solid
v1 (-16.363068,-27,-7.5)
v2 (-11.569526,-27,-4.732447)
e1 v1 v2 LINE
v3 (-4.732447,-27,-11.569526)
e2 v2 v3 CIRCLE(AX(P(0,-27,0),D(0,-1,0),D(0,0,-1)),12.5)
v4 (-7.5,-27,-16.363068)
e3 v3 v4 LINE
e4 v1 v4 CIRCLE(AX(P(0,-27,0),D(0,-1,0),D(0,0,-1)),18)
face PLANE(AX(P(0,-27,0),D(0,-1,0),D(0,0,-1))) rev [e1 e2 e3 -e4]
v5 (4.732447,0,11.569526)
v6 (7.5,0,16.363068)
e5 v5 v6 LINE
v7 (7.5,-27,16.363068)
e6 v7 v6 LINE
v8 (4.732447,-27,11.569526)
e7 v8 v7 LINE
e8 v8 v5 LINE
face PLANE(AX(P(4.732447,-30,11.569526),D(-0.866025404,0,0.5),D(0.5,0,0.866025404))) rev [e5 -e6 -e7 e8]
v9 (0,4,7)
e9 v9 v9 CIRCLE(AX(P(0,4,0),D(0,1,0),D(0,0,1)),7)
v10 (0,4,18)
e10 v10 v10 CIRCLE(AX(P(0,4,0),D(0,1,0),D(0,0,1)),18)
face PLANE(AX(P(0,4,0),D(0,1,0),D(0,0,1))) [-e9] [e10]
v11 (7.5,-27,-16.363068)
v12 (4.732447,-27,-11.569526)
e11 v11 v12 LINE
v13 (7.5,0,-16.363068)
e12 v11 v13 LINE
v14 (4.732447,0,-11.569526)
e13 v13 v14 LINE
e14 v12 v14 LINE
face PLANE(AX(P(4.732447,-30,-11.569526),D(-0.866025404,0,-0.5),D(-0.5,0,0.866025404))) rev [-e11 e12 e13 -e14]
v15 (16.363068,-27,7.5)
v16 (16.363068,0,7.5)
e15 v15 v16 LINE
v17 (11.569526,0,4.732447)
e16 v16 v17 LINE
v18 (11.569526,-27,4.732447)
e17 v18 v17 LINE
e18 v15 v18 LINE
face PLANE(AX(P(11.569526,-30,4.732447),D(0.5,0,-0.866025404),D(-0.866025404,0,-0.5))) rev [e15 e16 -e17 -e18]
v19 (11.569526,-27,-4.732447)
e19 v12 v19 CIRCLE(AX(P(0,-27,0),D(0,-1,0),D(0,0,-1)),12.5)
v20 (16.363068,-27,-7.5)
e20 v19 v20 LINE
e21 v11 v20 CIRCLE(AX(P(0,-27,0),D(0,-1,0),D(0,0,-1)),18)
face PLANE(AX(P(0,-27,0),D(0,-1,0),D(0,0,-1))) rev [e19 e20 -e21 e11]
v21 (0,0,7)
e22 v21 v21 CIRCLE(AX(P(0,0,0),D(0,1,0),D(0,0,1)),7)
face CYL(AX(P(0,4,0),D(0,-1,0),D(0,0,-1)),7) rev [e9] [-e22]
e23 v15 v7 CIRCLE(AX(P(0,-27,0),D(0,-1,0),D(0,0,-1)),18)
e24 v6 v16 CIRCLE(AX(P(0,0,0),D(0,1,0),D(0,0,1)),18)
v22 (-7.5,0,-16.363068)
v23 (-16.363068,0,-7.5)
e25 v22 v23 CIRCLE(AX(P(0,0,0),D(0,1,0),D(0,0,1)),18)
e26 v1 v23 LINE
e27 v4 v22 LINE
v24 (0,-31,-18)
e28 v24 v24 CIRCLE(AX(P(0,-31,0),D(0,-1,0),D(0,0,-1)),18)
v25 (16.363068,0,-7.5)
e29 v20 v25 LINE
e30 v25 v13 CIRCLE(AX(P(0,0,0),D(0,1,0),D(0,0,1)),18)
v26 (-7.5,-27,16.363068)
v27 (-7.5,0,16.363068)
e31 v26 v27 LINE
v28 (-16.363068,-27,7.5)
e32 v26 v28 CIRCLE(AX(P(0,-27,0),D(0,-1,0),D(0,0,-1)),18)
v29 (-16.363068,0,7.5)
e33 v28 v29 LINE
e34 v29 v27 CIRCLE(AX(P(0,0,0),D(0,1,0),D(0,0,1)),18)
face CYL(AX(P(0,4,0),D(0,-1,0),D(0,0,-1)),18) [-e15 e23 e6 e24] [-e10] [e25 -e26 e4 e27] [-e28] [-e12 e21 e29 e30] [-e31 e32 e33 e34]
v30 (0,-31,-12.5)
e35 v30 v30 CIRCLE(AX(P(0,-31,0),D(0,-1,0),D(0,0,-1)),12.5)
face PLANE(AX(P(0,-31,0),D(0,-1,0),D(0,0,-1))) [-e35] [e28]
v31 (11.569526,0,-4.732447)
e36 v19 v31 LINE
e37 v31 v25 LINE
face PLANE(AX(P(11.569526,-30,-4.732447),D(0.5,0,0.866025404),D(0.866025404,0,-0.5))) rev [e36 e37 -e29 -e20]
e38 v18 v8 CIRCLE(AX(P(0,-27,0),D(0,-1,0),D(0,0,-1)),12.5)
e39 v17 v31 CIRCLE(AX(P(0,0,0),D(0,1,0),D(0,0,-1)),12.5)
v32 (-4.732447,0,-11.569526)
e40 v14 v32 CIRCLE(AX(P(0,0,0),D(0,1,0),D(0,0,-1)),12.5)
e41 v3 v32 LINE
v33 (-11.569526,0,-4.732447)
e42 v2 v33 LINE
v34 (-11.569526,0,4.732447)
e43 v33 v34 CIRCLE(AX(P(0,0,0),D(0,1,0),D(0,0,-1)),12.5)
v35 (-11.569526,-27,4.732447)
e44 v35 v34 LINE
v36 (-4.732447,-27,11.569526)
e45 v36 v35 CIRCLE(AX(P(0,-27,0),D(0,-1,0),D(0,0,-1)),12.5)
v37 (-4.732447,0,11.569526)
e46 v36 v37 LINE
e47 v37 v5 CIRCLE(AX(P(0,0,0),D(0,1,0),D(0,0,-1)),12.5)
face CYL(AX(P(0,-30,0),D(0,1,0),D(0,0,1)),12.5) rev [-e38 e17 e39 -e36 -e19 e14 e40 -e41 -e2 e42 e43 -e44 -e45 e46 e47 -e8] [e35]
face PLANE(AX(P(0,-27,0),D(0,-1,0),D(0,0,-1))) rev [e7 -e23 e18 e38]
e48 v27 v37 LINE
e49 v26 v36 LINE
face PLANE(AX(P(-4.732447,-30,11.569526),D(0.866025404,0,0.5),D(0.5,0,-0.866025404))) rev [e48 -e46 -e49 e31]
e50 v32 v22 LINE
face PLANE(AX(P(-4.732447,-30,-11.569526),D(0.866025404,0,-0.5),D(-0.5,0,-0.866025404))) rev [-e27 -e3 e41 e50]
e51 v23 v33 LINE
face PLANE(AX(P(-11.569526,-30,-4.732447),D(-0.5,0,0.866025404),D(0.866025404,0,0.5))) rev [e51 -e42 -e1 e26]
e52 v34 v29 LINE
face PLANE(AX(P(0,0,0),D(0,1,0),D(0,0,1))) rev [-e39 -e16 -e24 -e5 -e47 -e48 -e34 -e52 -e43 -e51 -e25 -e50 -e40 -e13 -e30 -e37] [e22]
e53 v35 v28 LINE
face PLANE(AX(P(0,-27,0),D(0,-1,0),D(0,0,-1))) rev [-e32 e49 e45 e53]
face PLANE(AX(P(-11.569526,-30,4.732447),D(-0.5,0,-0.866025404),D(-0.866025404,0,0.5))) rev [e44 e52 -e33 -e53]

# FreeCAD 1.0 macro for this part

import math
import FreeCAD as App
import Part
import Sketcher

V = App.Vector
Q = App.Units.Quantity

doc = App.newDocument("Part")
body = doc.addObject("PartDesign::Body", "Body")

# Sketch on XZ plane
sketch1 = doc.addObject("Sketcher::SketchObject", "Sketch")
body.addObject(sketch1)
sketch1.AttachmentSupport = (doc.XZ_Plane, [""])
sketch1.MapMode = "FlatFace"
sketch1.addGeometry([
    Part.Circle(V(0, 0, 0), V(0, 0, 1), 18),
    Part.Circle(V(0, 0, 0), V(0, 0, 1), 7),
], False)
sketch1.addConstraint([
    Sketcher.Constraint("Coincident", 0, 3, -1, 1),
    Sketcher.Constraint("Coincident", 1, 3, -1, 1),
    Sketcher.Constraint("Diameter", 0, 36.0),
    Sketcher.Constraint("Diameter", 1, 14.0),
])
pad1 = doc.addObject("PartDesign::Pad", "Pad")
body.addObject(pad1)
pad1.Profile = sketch1
pad1.Length = 4
pad1.Reversed = True

# Sketch on XZ plane
sketch2 = doc.addObject("Sketcher::SketchObject", "Sketch001")
body.addObject(sketch2)
sketch2.AttachmentSupport = (doc.XZ_Plane, [""])
sketch2.MapMode = "FlatFace"
sketch2.addGeometry([
    Part.LineSegment(V(4.732447, 11.569526, 0), V(7.5, 16.363068, 0)),  # 0
    Part.ArcOfCircle(Part.Circle(V(0, 0.000002, 0), V(0, 0, 1), 17.999998), math.radians(65.375679), math.radians(114.624321)),  # 1
    Part.LineSegment(V(-7.5, 16.363068, 0), V(-4.732447, 11.569526, 0)),  # 2
    Part.ArcOfCircle(Part.Circle(V(0, 0.000007, 0), V(0, 0, 1), 12.499993), math.radians(67.753258), math.radians(112.246742)),  # 3
    Part.LineSegment(V(11.569526, -4.732447, 0), V(16.363068, -7.5, 0)),  # 4
    Part.ArcOfCircle(Part.Circle(V(0.000002, 0, 0), V(0, 0, 1), 17.999998), math.radians(-24.624321), math.radians(24.624321)),  # 5
    Part.LineSegment(V(16.363068, 7.5, 0), V(11.569526, 4.732447, 0)),  # 6
    Part.ArcOfCircle(Part.Circle(V(0.000007, 0, 0), V(0, 0, 1), 12.499993), math.radians(-22.246742), math.radians(22.246742)),  # 7
    Part.LineSegment(V(-4.732447, -11.569526, 0), V(-7.5, -16.363068, 0)),  # 8
    Part.ArcOfCircle(Part.Circle(V(0, -0.000002, 0), V(0, 0, 1), 17.999998), math.radians(-114.624321), math.radians(-65.375679)),  # 9
    Part.LineSegment(V(7.5, -16.363068, 0), V(4.732447, -11.569526, 0)),  # 10
    Part.ArcOfCircle(Part.Circle(V(0, -0.000007, 0), V(0, 0, 1), 12.499993), math.radians(-112.246742), math.radians(-67.753258)),  # 11
    Part.LineSegment(V(-11.569526, 4.732447, 0), V(-16.363068, 7.5, 0)),  # 12
    Part.ArcOfCircle(Part.Circle(V(-0.000002, 0, 0), V(0, 0, 1), 17.999998), math.radians(155.375679), math.radians(204.624321)),  # 13
    Part.LineSegment(V(-16.363068, -7.5, 0), V(-11.569526, -4.732447, 0)),  # 14
    Part.ArcOfCircle(Part.Circle(V(-0.000007, 0, 0), V(0, 0, 1), 12.499993), math.radians(157.753258), math.radians(202.246742)),  # 15
], False)
sketch2.addConstraint([
    Sketcher.Constraint("Coincident", 0, 2, 1, 1),
    Sketcher.Constraint("Coincident", 1, 2, 2, 1),
    Sketcher.Constraint("Coincident", 2, 2, 3, 2),
    Sketcher.Constraint("Coincident", 3, 1, 0, 1),
    Sketcher.Constraint("Coincident", 4, 2, 5, 1),
    Sketcher.Constraint("Coincident", 5, 2, 6, 1),
    Sketcher.Constraint("Coincident", 6, 2, 7, 2),
    Sketcher.Constraint("Coincident", 7, 1, 4, 1),
    Sketcher.Constraint("Coincident", 8, 2, 9, 1),
    Sketcher.Constraint("Coincident", 9, 2, 10, 1),
    Sketcher.Constraint("Coincident", 10, 2, 11, 2),
    Sketcher.Constraint("Coincident", 11, 1, 8, 1),
    Sketcher.Constraint("Coincident", 12, 2, 13, 1),
    Sketcher.Constraint("Coincident", 13, 2, 14, 1),
    Sketcher.Constraint("Coincident", 14, 2, 15, 2),
    Sketcher.Constraint("Coincident", 15, 1, 12, 1),
    Sketcher.Constraint("Coincident", 1, 3, -1, 1),
    Sketcher.Constraint("Coincident", 3, 3, -1, 1),
    Sketcher.Constraint("Coincident", 5, 3, -1, 1),
    Sketcher.Constraint("Coincident", 7, 3, -1, 1),
    Sketcher.Constraint("Coincident", 9, 3, -1, 1),
    Sketcher.Constraint("Coincident", 11, 3, -1, 1),
    Sketcher.Constraint("Coincident", 13, 3, -1, 1),
    Sketcher.Constraint("Coincident", 15, 3, -1, 1),
    Sketcher.Constraint("Equal", 1, 5),
    Sketcher.Constraint("Equal", 3, 7),
    Sketcher.Constraint("Equal", 5, 9),
    Sketcher.Constraint("Equal", 7, 11),
    Sketcher.Constraint("Equal", 9, 13),
    Sketcher.Constraint("Equal", 11, 15),
    Sketcher.Constraint("Perpendicular", 0, 4),
    Sketcher.Constraint("Perpendicular", 2, 6),
    Sketcher.Constraint("Perpendicular", 4, 8),
    Sketcher.Constraint("Perpendicular", 6, 10),
    Sketcher.Constraint("Perpendicular", 8, 12),
    Sketcher.Constraint("Perpendicular", 10, 14),
    Sketcher.Constraint("Horizontal", 0, 2, 1, 2),
    Sketcher.Constraint("Horizontal", 2, 2, 3, 1),
    Sketcher.Constraint("Horizontal", 8, 2, 9, 2),
    Sketcher.Constraint("Horizontal", 5, 2, 12, 2),
    Sketcher.Constraint("Horizontal", 4, 2, 13, 2),
    Sketcher.Constraint("Vertical", 4, 2, 5, 2),
    Sketcher.Constraint("Vertical", 1, 2, 8, 2),
    Sketcher.Constraint("Equal", 2, 4),
    Sketcher.Constraint("Radius", 1, 17.999998),
    Sketcher.Constraint("Angle", 0, Q("59.999998 deg")),
    Sketcher.Constraint("DistanceX", 1, 2, 0, 2, 15.0),
    Sketcher.Constraint("Radius", 3, 12.499993),
])
pad2 = doc.addObject("PartDesign::Pad", "Pad001")
body.addObject(pad2)
pad2.Profile = sketch2
pad2.Length = 30

# Sketch on XZ plane
sketch3 = doc.addObject("Sketcher::SketchObject", "Sketch002")
body.addObject(sketch3)
sketch3.AttachmentSupport = (doc.XZ_Plane, [""])
sketch3.MapMode = "FlatFace"
sketch3.AttachmentOffset = App.Placement(V(0, 0, 30), App.Rotation())
sketch3.addGeometry([
    Part.Circle(V(0, 0, 0), V(0, 0, 1), 18),
    Part.Circle(V(0, 0, 0), V(0, 0, 1), 12.5),
], False)
sketch3.addConstraint([
    Sketcher.Constraint("Coincident", 0, 3, -1, 1),
    Sketcher.Constraint("Coincident", 1, 3, -1, 1),
    Sketcher.Constraint("Diameter", 0, 36.0),
    Sketcher.Constraint("Diameter", 1, 25.0),
])
pad3 = doc.addObject("PartDesign::Pad", "Pad002")
body.addObject(pad3)
pad3.Profile = sketch3
pad3.Type = "TwoLengths"
pad3.Length = 1
pad3.Length2 = 3

doc.recompute()
